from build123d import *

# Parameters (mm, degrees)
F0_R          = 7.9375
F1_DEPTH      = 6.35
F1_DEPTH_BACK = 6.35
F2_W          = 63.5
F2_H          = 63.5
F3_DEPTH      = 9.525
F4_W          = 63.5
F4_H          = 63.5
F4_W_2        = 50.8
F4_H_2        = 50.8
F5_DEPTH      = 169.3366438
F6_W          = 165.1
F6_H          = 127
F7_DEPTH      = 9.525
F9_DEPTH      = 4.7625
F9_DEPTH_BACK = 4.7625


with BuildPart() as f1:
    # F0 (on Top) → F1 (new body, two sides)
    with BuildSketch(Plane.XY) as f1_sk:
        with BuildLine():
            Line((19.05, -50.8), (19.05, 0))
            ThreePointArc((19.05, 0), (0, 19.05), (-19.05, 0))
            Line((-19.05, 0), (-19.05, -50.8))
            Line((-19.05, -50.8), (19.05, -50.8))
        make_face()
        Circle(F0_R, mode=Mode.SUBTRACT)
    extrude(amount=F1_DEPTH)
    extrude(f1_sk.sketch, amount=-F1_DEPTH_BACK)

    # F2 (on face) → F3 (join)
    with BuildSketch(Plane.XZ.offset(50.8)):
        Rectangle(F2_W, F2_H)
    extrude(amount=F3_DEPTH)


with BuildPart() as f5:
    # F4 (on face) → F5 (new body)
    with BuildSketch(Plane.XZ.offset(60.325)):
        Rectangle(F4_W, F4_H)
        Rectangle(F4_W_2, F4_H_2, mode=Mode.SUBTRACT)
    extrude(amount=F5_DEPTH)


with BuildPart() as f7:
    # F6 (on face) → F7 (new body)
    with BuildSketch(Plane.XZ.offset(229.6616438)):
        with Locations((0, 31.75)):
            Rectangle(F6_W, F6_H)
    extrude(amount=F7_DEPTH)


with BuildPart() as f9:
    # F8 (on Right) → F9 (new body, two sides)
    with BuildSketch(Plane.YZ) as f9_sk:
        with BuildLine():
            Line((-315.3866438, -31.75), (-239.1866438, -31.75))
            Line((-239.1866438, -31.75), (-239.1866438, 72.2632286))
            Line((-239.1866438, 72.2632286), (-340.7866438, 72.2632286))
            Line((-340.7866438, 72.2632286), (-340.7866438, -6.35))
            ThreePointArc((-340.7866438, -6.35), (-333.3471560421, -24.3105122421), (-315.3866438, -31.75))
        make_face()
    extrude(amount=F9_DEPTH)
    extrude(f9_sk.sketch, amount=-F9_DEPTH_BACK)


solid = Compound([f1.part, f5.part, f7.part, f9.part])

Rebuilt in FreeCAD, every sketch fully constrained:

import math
import FreeCAD as App
import Part
import Sketcher

V = App.Vector
Q = App.Units.Quantity


def add_polygon(sketch, points):
    """Adds a closed chain of lines whose ends are joined by coincident constraints."""
    first, n = sketch.GeometryCount, len(points)
    for a, b in zip(points, points[1:] + points[:1]):
        sketch.addGeometry(Part.LineSegment(App.Vector(*a, 0), App.Vector(*b, 0)), False)
    for i in range(n):
        sketch.addConstraint(Sketcher.Constraint("Coincident", first + i, 2, first + (i + 1) % n, 1))

doc = App.newDocument("Part")
body = doc.addObject("PartDesign::Body", "Body")

sketch1 = body.newObject("Sketcher::SketchObject", "Sketch")
sketch1.AttachmentSupport = (doc.getObject("XY_Plane"), [""])
sketch1.MapMode = "FlatFace"
sketch1.addGeometry(Part.LineSegment(V(19.05, -50.8, 0), V(19.05, 0, 0)), False)
sketch1.addGeometry(Part.ArcOfCircle(Part.Circle(V(0, 0, 0), V(0, 0, 1), 19.05), math.radians(0), math.radians(180)), False)
sketch1.addGeometry(Part.LineSegment(V(-19.05, 0, 0), V(-19.05, -50.8, 0)), False)
sketch1.addGeometry(Part.LineSegment(V(-19.05, -50.8, 0), V(19.05, -50.8, 0)), False)
sketch1.addGeometry(Part.Circle(V(0, 0, 0), V(0, 0, 1), 7.9375), False)
sketch1.addConstraint(Sketcher.Constraint("Tangent", 0, 2, 1, 1))
sketch1.addConstraint(Sketcher.Constraint("Tangent", 1, 2, 2, 1))
sketch1.addConstraint(Sketcher.Constraint("Coincident", 2, 2, 3, 1))
sketch1.addConstraint(Sketcher.Constraint("Coincident", 3, 2, 0, 1))
sketch1.addConstraint(Sketcher.Constraint("Vertical", 0))
sketch1.addConstraint(Sketcher.Constraint("Vertical", 2))
sketch1.addConstraint(Sketcher.Constraint("Horizontal", 3))
sketch1.addConstraint(Sketcher.Constraint("Coincident", 1, 3, -1, 1))
sketch1.addConstraint(Sketcher.Constraint("Coincident", 4, 3, -1, 1))
sketch1.addConstraint(Sketcher.Constraint("DistanceY", 0, 1, 0, 2, Q("2 in")))
sketch1.addConstraint(Sketcher.Constraint("Radius", 1, Q("0.75 in")))
sketch1.addConstraint(Sketcher.Constraint("Diameter", 4, Q("0.625 in")))
pad1 = body.newObject("PartDesign::Pad", "Pad")
pad1.Profile = sketch1
pad1.Type = "TwoLengths"
pad1.Length = Q("0.25 in")
pad1.Length2 = Q("0.25 in")

sketch2 = body.newObject("Sketcher::SketchObject", "Sketch001")
sketch2.AttachmentSupport = (doc.getObject("XZ_Plane"), [""])
sketch2.MapMode = "FlatFace"
sketch2.AttachmentOffset = App.Placement(V(0, 0, 2 * 25.4), App.Rotation())
add_polygon(sketch2, [(-31.75, 31.75), (-31.75, -31.75), (31.75, -31.75), (31.75, 31.75)])
sketch2.addConstraint(Sketcher.Constraint("Vertical", 0))
sketch2.addConstraint(Sketcher.Constraint("Horizontal", 1))
sketch2.addConstraint(Sketcher.Constraint("Vertical", 2))
sketch2.addConstraint(Sketcher.Constraint("Horizontal", 3))
sketch2.addConstraint(Sketcher.Constraint("Symmetric", 0, 2, 2, 2, -1, 1))
sketch2.addConstraint(Sketcher.Constraint("Equal", 3, 0))
sketch2.addConstraint(Sketcher.Constraint("DistanceX", 1, 1, 1, 2, Q("2.5 in")))
pad2 = body.newObject("PartDesign::Pad", "Pad001")
pad2.Profile = sketch2
pad2.Length = Q("0.375 in")
body2 = doc.addObject("PartDesign::Body", "Body001")

sketch3 = body2.newObject("Sketcher::SketchObject", "Sketch002")
sketch3.AttachmentSupport = (doc.getObject("XZ_Plane001"), [""])
sketch3.MapMode = "FlatFace"
sketch3.AttachmentOffset = App.Placement(V(0, 0, 2.375 * 25.4), App.Rotation())
add_polygon(sketch3, [(-31.75, 31.75), (-31.75, -31.75), (31.75, -31.75), (31.75, 31.75)])
add_polygon(sketch3, [(25.4, -25.4), (-25.4, -25.4), (-25.4, 25.4), (25.4, 25.4)])
sketch3.addConstraint(Sketcher.Constraint("Vertical", 0))
sketch3.addConstraint(Sketcher.Constraint("Horizontal", 1))
sketch3.addConstraint(Sketcher.Constraint("Vertical", 2))
sketch3.addConstraint(Sketcher.Constraint("Horizontal", 3))
sketch3.addConstraint(Sketcher.Constraint("Horizontal", 4))
sketch3.addConstraint(Sketcher.Constraint("Vertical", 5))
sketch3.addConstraint(Sketcher.Constraint("Horizontal", 6))
sketch3.addConstraint(Sketcher.Constraint("Vertical", 7))
sketch3.addConstraint(Sketcher.Constraint("Symmetric", 0, 2, 2, 2, -1, 1))
sketch3.addConstraint(Sketcher.Constraint("Symmetric", 4, 2, 6, 2, -1, 1))
sketch3.addConstraint(Sketcher.Constraint("Equal", 3, 0))
sketch3.addConstraint(Sketcher.Constraint("Equal", 6, 5))
sketch3.addConstraint(Sketcher.Constraint("DistanceX", 4, 2, 4, 1, Q("2 in")))
sketch3.addConstraint(Sketcher.Constraint("DistanceX", 1, 1, 1, 2, Q("2.5 in")))
pad3 = body2.newObject("PartDesign::Pad", "Pad002")
pad3.Profile = sketch3
pad3.Length = 169.336644
body3 = doc.addObject("PartDesign::Body", "Body002")

sketch4 = body3.newObject("Sketcher::SketchObject", "Sketch003")
sketch4.AttachmentSupport = (doc.getObject("XZ_Plane002"), [""])
sketch4.MapMode = "FlatFace"
sketch4.AttachmentOffset = App.Placement(V(0, 0, 229.661644), App.Rotation())
add_polygon(sketch4, [(-82.55, 95.25), (-82.55, -31.75), (82.55, -31.75), (82.55, 95.25)])
sketch4.addConstraint(Sketcher.Constraint("Vertical", 0))
sketch4.addConstraint(Sketcher.Constraint("Horizontal", 1))
sketch4.addConstraint(Sketcher.Constraint("Vertical", 2))
sketch4.addConstraint(Sketcher.Constraint("Horizontal", 3))
sketch4.addConstraint(Sketcher.Constraint("DistanceY", 0, 2, 0, 1, Q("5 in")))
sketch4.addConstraint(Sketcher.Constraint("DistanceX", 1, 1, 1, 2, Q("6.5 in")))
sketch4.addConstraint(Sketcher.Constraint("DistanceX", 0, 2, -1, 1, Q("3.25 in")))
sketch4.addConstraint(Sketcher.Constraint("DistanceY", 0, 2, -1, 1, Q("1.25 in")))
pad4 = body3.newObject("PartDesign::Pad", "Pad003")
pad4.Profile = sketch4
pad4.Length = Q("0.375 in")
body4 = doc.addObject("PartDesign::Body", "Body003")

sketch5 = body4.newObject("Sketcher::SketchObject", "Sketch004")
sketch5.AttachmentSupport = (doc.getObject("YZ_Plane003"), [""])
sketch5.MapMode = "FlatFace"
sketch5.addGeometry(Part.LineSegment(V(-315.386644, -31.75, 0), V(-239.186644, -31.75, 0)), False)
sketch5.addGeometry(Part.LineSegment(V(-239.186644, -31.75, 0), V(-239.186644, 72.263229, 0)), False)
sketch5.addGeometry(Part.LineSegment(V(-239.186644, 72.263229, 0), V(-340.786644, 72.263229, 0)), False)
sketch5.addGeometry(Part.LineSegment(V(-340.786644, 72.263229, 0), V(-340.786644, -6.35, 0)), False)
sketch5.addGeometry(Part.ArcOfCircle(Part.Circle(V(-315.386644, -6.35, 0), V(0, 0, 1), 25.4), math.radians(180), math.radians(270)), False)
sketch5.addConstraint(Sketcher.Constraint("Coincident", 0, 2, 1, 1))
sketch5.addConstraint(Sketcher.Constraint("Coincident", 1, 2, 2, 1))
sketch5.addConstraint(Sketcher.Constraint("Coincident", 2, 2, 3, 1))
sketch5.addConstraint(Sketcher.Constraint("Tangent", 3, 2, 4, 1))
sketch5.addConstraint(Sketcher.Constraint("Tangent", 4, 2, 0, 1))
sketch5.addConstraint(Sketcher.Constraint("Horizontal", 0))
sketch5.addConstraint(Sketcher.Constraint("Vertical", 1))
sketch5.addConstraint(Sketcher.Constraint("Horizontal", 2))
sketch5.addConstraint(Sketcher.Constraint("Vertical", 3))
sketch5.addConstraint(Sketcher.Constraint("Radius", 4, Q("1 in")))
sketch5.addConstraint(Sketcher.Constraint("DistanceX", 0, 1, 0, 2, Q("3 in")))
sketch5.addConstraint(Sketcher.Constraint("DistanceY", 4, 3, -1, 1, Q("0.25 in")))
sketch5.addConstraint(Sketcher.Constraint("DistanceY", 1, 1, 1, 2, Q("104.013229 mm")))
sketch5.addConstraint(Sketcher.Constraint("DistanceX", 4, 3, -1, 1, Q("315.386644 mm")))
pad5 = body4.newObject("PartDesign::Pad", "Pad004")
pad5.Profile = sketch5
pad5.Type = "TwoLengths"
pad5.Length = Q("0.1875 in")
pad5.Length2 = Q("0.1875 in")

doc.recompute()
